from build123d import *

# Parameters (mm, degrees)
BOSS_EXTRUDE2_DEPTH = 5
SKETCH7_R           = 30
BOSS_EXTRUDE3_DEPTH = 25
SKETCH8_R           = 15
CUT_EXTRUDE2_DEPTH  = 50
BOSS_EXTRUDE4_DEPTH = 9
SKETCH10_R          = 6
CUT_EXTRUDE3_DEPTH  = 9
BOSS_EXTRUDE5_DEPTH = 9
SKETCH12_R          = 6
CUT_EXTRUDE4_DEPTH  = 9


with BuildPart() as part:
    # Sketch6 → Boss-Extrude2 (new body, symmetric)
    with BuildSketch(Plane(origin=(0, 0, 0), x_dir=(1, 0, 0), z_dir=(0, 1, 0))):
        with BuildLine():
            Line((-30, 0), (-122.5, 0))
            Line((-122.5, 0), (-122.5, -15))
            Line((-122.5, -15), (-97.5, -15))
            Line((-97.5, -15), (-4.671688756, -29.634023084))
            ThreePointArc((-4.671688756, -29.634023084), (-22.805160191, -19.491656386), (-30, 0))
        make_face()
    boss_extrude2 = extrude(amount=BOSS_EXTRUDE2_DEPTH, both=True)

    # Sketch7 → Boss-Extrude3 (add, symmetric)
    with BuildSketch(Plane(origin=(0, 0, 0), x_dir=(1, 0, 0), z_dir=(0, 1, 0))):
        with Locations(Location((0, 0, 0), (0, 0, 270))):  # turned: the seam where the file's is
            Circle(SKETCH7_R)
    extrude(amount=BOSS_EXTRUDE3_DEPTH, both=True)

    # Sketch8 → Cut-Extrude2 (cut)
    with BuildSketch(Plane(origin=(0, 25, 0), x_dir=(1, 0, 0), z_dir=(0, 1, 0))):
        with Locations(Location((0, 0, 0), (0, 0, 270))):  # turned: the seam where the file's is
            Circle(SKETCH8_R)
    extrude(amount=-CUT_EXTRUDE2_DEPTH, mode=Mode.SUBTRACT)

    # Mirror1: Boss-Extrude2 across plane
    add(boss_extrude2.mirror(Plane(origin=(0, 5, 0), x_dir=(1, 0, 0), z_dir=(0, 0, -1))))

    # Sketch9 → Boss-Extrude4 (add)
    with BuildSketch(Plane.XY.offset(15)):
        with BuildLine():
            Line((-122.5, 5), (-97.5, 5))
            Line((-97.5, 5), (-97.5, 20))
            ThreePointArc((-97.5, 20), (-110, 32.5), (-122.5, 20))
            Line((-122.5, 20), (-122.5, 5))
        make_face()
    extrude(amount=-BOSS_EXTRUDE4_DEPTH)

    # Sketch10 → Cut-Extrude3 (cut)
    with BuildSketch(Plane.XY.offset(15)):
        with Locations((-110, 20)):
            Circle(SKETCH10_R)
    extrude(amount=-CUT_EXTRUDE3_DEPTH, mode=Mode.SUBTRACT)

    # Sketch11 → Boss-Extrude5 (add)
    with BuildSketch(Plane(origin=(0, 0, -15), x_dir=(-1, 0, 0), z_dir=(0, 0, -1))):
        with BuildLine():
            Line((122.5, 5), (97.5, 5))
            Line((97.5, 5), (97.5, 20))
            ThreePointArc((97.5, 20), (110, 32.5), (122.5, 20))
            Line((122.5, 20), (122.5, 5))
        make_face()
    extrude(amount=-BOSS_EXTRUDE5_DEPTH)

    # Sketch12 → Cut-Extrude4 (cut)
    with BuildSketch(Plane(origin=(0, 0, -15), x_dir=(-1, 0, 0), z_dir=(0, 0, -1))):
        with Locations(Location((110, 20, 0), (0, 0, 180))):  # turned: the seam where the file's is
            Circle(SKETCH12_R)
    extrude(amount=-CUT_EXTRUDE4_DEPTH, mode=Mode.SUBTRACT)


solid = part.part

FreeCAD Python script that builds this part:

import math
import FreeCAD as App
import Part
import Sketcher

doc = App.newDocument("Part")
body = doc.addObject("PartDesign::Body", "Body")

# Sketch on XZ plane
sketch1 = body.newObject("Sketcher::SketchObject", "Sketch")
sketch1.AttachmentSupport = (doc.getObject("XZ_Plane"), [""])
sketch1.MapMode = "FlatFace"
sketch1.addGeometry(Part.LineSegment(App.Vector(-30, 0, 0), App.Vector(-122.5, 0, 0)), False)
sketch1.addGeometry(Part.LineSegment(App.Vector(-122.5, 0, 0), App.Vector(-122.5, 15, 0)), False)
sketch1.addGeometry(Part.LineSegment(App.Vector(-122.5, 15, 0), App.Vector(-97.5, 15, 0)), False)
sketch1.addGeometry(Part.LineSegment(App.Vector(-97.5, 15, 0), App.Vector(-4.671689, 29.634023, 0)), False)
sketch1.addGeometry(Part.ArcOfCircle(Part.Circle(App.Vector(0, 0, 0), App.Vector(0, 0, 1), 30), math.radians(98.958728), math.radians(180)), False)
sketch1.addConstraint(Sketcher.Constraint("Coincident", 0, 2, 1, 1))
sketch1.addConstraint(Sketcher.Constraint("Coincident", 1, 2, 2, 1))
sketch1.addConstraint(Sketcher.Constraint("Coincident", 2, 2, 3, 1))
sketch1.addConstraint(Sketcher.Constraint("Tangent", 3, 2, 4, 1))
sketch1.addConstraint(Sketcher.Constraint("Coincident", 4, 2, 0, 1))
sketch1.addConstraint(Sketcher.Constraint("Horizontal", 0))
sketch1.addConstraint(Sketcher.Constraint("Vertical", 1))
sketch1.addConstraint(Sketcher.Constraint("Horizontal", 2))
sketch1.addConstraint(Sketcher.Constraint("Coincident", 4, 3, -1, 1))
sketch1.addConstraint(Sketcher.Constraint("PointOnObject", 0, 2, -1))
sketch1.addConstraint(Sketcher.Constraint("Radius", 4, 30.0))
sketch1.addConstraint(Sketcher.Constraint("DistanceX", 2, 1, 2, 2, 25.0))
sketch1.addConstraint(Sketcher.Constraint("DistanceY", 1, 1, 1, 2, 15.0))
sketch1.addConstraint(Sketcher.Constraint("DistanceX", 0, 2, 0, 1, 92.5))
pad1 = body.newObject("PartDesign::Pad", "Pad")
pad1.Profile = sketch1
pad1.Length = 10
pad1.Midplane = True

# Sketch on XZ plane
sketch2 = body.newObject("Sketcher::SketchObject", "Sketch001")
sketch2.AttachmentSupport = (doc.getObject("XZ_Plane"), [""])
sketch2.MapMode = "FlatFace"
sketch2.addGeometry(Part.Circle(App.Vector(0, 0, 0), App.Vector(0, 0, 1), 30), False)
sketch2.addConstraint(Sketcher.Constraint("Coincident", 0, 3, -1, 1))
sketch2.addConstraint(Sketcher.Constraint("Diameter", 0, 60.0))
pad2 = body.newObject("PartDesign::Pad", "Pad001")
pad2.Profile = sketch2
pad2.Length = 50
pad2.Midplane = True

# Sketch on XZ plane
sketch3 = body.newObject("Sketcher::SketchObject", "Sketch002")
sketch3.AttachmentSupport = (doc.getObject("XZ_Plane"), [""])
sketch3.MapMode = "FlatFace"
sketch3.AttachmentOffset = App.Placement(App.Vector(0, 0, -25), App.Rotation())
sketch3.addGeometry(Part.Circle(App.Vector(0, 0, 0), App.Vector(0, 0, 1), 15), False)
sketch3.addConstraint(Sketcher.Constraint("Coincident", 0, 3, -1, 1))
sketch3.addConstraint(Sketcher.Constraint("Diameter", 0, 30.0))
pocket1 = body.newObject("PartDesign::Pocket", "Pocket")
pocket1.Profile = sketch3
pocket1.Length = 50
pocket1.Reversed = True
doc.recompute()

mirrored = body.newObject("PartDesign::Mirrored", "Mirrored")
mirrored.Originals = [pad1]
mirrored.MirrorPlane = (doc.getObject("XY_Plane"), [""])
body.Tip = mirrored

# Sketch on XY plane
sketch4 = body.newObject("Sketcher::SketchObject", "Sketch003")
sketch4.AttachmentSupport = (doc.getObject("XY_Plane"), [""])
sketch4.MapMode = "FlatFace"
sketch4.AttachmentOffset = App.Placement(App.Vector(0, 0, 15), App.Rotation())
sketch4.addGeometry(Part.LineSegment(App.Vector(-122.5, 5, 0), App.Vector(-97.5, 5, 0)), False)
sketch4.addGeometry(Part.LineSegment(App.Vector(-97.5, 5, 0), App.Vector(-97.5, 20, 0)), False)
sketch4.addGeometry(Part.ArcOfCircle(Part.Circle(App.Vector(-110, 20, 0), App.Vector(0, 0, 1), 12.5), math.radians(0), math.radians(180)), False)
sketch4.addGeometry(Part.LineSegment(App.Vector(-122.5, 20, 0), App.Vector(-122.5, 5, 0)), False)
sketch4.addConstraint(Sketcher.Constraint("Coincident", 0, 2, 1, 1))
sketch4.addConstraint(Sketcher.Constraint("Tangent", 1, 2, 2, 1))
sketch4.addConstraint(Sketcher.Constraint("Tangent", 2, 2, 3, 1))
sketch4.addConstraint(Sketcher.Constraint("Coincident", 3, 2, 0, 1))
sketch4.addConstraint(Sketcher.Constraint("Horizontal", 0))
sketch4.addConstraint(Sketcher.Constraint("Vertical", 1))
sketch4.addConstraint(Sketcher.Constraint("Vertical", 3))
sketch4.addConstraint(Sketcher.Constraint("Radius", 2, 12.5))
sketch4.addConstraint(Sketcher.Constraint("DistanceY", 1, 1, 1, 2, 15.0))
sketch4.addConstraint(Sketcher.Constraint("DistanceX", 2, 3, -1, 1, 110.0))
sketch4.addConstraint(Sketcher.Constraint("DistanceY", -1, 1, 2, 3, 20.0))
pad3 = body.newObject("PartDesign::Pad", "Pad002")
pad3.Profile = sketch4
pad3.Length = 9
pad3.Reversed = True

# Sketch on XY plane
sketch5 = body.newObject("Sketcher::SketchObject", "Sketch004")
sketch5.AttachmentSupport = (doc.getObject("XY_Plane"), [""])
sketch5.MapMode = "FlatFace"
sketch5.AttachmentOffset = App.Placement(App.Vector(0, 0, 15), App.Rotation())
sketch5.addGeometry(Part.Circle(App.Vector(-110, 20, 0), App.Vector(0, 0, 1), 6), False)
sketch5.addConstraint(Sketcher.Constraint("Diameter", 0, 12.0))
sketch5.addConstraint(Sketcher.Constraint("DistanceX", 0, 3, -1, 1, 110.0))
sketch5.addConstraint(Sketcher.Constraint("DistanceY", -1, 1, 0, 3, 20.0))
pocket2 = body.newObject("PartDesign::Pocket", "Pocket001")
pocket2.Profile = sketch5
pocket2.Length = 9

# Sketch on XY plane
sketch6 = body.newObject("Sketcher::SketchObject", "Sketch005")
sketch6.AttachmentSupport = (doc.getObject("XY_Plane"), [""])
sketch6.MapMode = "FlatFace"
sketch6.AttachmentOffset = App.Placement(App.Vector(0, 0, -15), App.Rotation())
sketch6.addGeometry(Part.LineSegment(App.Vector(-97.5, 5, 0), App.Vector(-122.5, 5, 0)), False)
sketch6.addGeometry(Part.LineSegment(App.Vector(-122.5, 5, 0), App.Vector(-122.5, 20, 0)), False)
sketch6.addGeometry(Part.ArcOfCircle(Part.Circle(App.Vector(-110, 20, 0), App.Vector(0, 0, 1), 12.5), math.radians(0), math.radians(180)), False)
sketch6.addGeometry(Part.LineSegment(App.Vector(-97.5, 20, 0), App.Vector(-97.5, 5, 0)), False)
sketch6.addConstraint(Sketcher.Constraint("Coincident", 0, 2, 1, 1))
sketch6.addConstraint(Sketcher.Constraint("Tangent", 1, 2, 2, 2))
sketch6.addConstraint(Sketcher.Constraint("Tangent", 2, 1, 3, 1))
sketch6.addConstraint(Sketcher.Constraint("Coincident", 3, 2, 0, 1))
sketch6.addConstraint(Sketcher.Constraint("Horizontal", 0))
sketch6.addConstraint(Sketcher.Constraint("Vertical", 1))
sketch6.addConstraint(Sketcher.Constraint("Vertical", 3))
sketch6.addConstraint(Sketcher.Constraint("Radius", 2, 12.5))
sketch6.addConstraint(Sketcher.Constraint("DistanceY", 1, 1, 1, 2, 15.0))
sketch6.addConstraint(Sketcher.Constraint("DistanceX", 2, 3, -1, 1, 110.0))
sketch6.addConstraint(Sketcher.Constraint("DistanceY", -1, 1, 2, 3, 20.0))
pad4 = body.newObject("PartDesign::Pad", "Pad003")
pad4.Profile = sketch6
pad4.Length = 9

# Sketch on XY plane
sketch7 = body.newObject("Sketcher::SketchObject", "Sketch006")
sketch7.AttachmentSupport = (doc.getObject("XY_Plane"), [""])
sketch7.MapMode = "FlatFace"
sketch7.AttachmentOffset = App.Placement(App.Vector(0, 0, -15), App.Rotation())
sketch7.addGeometry(Part.Circle(App.Vector(-110, 20, 0), App.Vector(0, 0, 1), 6), False)
sketch7.addConstraint(Sketcher.Constraint("Diameter", 0, 12.0))
sketch7.addConstraint(Sketcher.Constraint("DistanceX", 0, 3, -1, 1, 110.0))
sketch7.addConstraint(Sketcher.Constraint("DistanceY", -1, 1, 0, 3, 20.0))
pocket3 = body.newObject("PartDesign::Pocket", "Pocket002")
pocket3.Profile = sketch7
pocket3.Length = 9
pocket3.Reversed = True

doc.recompute()
